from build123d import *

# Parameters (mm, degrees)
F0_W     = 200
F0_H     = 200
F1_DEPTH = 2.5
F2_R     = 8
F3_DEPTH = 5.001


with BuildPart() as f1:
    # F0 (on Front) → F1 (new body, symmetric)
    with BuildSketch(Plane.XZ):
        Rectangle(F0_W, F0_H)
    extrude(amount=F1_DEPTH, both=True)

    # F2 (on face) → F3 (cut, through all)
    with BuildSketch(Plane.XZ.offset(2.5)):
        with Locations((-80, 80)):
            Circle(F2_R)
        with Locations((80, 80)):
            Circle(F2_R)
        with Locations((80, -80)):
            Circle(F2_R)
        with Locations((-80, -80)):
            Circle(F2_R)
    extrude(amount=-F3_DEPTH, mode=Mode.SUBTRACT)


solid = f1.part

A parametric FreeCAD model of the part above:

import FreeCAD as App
import Part
import Sketcher
from FreeCAD import Vector
Q = App.Units.Quantity


def add_polygon(sketch, points):
    """Adds a closed chain of lines whose ends are joined by coincident constraints."""
    first, n = sketch.GeometryCount, len(points)
    for a, b in zip(points, points[1:] + points[:1]):
        sketch.addGeometry(Part.LineSegment(App.Vector(*a, 0), App.Vector(*b, 0)), False)
    for i in range(n):
        sketch.addConstraint(Sketcher.Constraint("Coincident", first + i, 2, first + (i + 1) % n, 1))

doc = App.newDocument("Part")
body = doc.addObject("PartDesign::Body", "Body")

# Sketch on XZ plane
sketch1 = body.newObject("Sketcher::SketchObject", "Sketch")
sketch1.AttachmentSupport = (doc.getObject("XZ_Plane"), [""])
sketch1.MapMode = "FlatFace"
add_polygon(sketch1, [(-100, 100), (-100, -100), (100, -100), (100, 100)])  # lines 0-3
sketch1.addConstraint([
    Sketcher.Constraint("Vertical", 0),
    Sketcher.Constraint("Horizontal", 1),
    Sketcher.Constraint("Vertical", 2),
    Sketcher.Constraint("Horizontal", 3),
    Sketcher.Constraint("Symmetric", 0, 2, 2, 2, -1, 1),
    Sketcher.Constraint("Equal", 3, 0),
    Sketcher.Constraint("DistanceX", 1, 1, 1, 2, Q("200 mm")),
])
pad1 = body.newObject("PartDesign::Pad", "Pad")
pad1.Profile = sketch1
pad1.Length = 5
pad1.Midplane = True

# Sketch on XZ plane
sketch2 = body.newObject("Sketcher::SketchObject", "Sketch001")
sketch2.AttachmentSupport = (doc.getObject("XZ_Plane"), [""])
sketch2.MapMode = "FlatFace"
sketch2.AttachmentOffset = App.Placement(Vector(0, 0, 2.5), App.Rotation())
sketch2.addGeometry([
    Part.Circle(Vector(-80, 80, 0), Vector(0, 0, 1), 8),
    Part.Circle(Vector(80, 80, 0), Vector(0, 0, 1), 8),
    Part.Circle(Vector(80, -80, 0), Vector(0, 0, 1), 8),
    Part.Circle(Vector(-80, -80, 0), Vector(0, 0, 1), 8),
], False)
sketch2.addConstraint([
    Sketcher.Constraint("Equal", 0, 1),
    Sketcher.Constraint("Equal", 1, 2),
    Sketcher.Constraint("Equal", 2, 3),
    Sketcher.Constraint("Symmetric", 0, 3, 2, 3, -1, 1),
    Sketcher.Constraint("Symmetric", 1, 3, 3, 3, -1, 1),
    Sketcher.Constraint("Symmetric", 0, 3, 1, 3, -2),
    Sketcher.Constraint("Diameter", 0, Q("16 mm")),
    Sketcher.Constraint("DistanceX", 0, 3, -1, 1, Q("80 mm")),
    Sketcher.Constraint("DistanceY", -1, 1, 0, 3, Q("80 mm")),
])
pocket1 = body.newObject("PartDesign::Pocket", "Pocket")
pocket1.Profile = sketch2
pocket1.Type = "ThroughAll"

doc.recompute()
